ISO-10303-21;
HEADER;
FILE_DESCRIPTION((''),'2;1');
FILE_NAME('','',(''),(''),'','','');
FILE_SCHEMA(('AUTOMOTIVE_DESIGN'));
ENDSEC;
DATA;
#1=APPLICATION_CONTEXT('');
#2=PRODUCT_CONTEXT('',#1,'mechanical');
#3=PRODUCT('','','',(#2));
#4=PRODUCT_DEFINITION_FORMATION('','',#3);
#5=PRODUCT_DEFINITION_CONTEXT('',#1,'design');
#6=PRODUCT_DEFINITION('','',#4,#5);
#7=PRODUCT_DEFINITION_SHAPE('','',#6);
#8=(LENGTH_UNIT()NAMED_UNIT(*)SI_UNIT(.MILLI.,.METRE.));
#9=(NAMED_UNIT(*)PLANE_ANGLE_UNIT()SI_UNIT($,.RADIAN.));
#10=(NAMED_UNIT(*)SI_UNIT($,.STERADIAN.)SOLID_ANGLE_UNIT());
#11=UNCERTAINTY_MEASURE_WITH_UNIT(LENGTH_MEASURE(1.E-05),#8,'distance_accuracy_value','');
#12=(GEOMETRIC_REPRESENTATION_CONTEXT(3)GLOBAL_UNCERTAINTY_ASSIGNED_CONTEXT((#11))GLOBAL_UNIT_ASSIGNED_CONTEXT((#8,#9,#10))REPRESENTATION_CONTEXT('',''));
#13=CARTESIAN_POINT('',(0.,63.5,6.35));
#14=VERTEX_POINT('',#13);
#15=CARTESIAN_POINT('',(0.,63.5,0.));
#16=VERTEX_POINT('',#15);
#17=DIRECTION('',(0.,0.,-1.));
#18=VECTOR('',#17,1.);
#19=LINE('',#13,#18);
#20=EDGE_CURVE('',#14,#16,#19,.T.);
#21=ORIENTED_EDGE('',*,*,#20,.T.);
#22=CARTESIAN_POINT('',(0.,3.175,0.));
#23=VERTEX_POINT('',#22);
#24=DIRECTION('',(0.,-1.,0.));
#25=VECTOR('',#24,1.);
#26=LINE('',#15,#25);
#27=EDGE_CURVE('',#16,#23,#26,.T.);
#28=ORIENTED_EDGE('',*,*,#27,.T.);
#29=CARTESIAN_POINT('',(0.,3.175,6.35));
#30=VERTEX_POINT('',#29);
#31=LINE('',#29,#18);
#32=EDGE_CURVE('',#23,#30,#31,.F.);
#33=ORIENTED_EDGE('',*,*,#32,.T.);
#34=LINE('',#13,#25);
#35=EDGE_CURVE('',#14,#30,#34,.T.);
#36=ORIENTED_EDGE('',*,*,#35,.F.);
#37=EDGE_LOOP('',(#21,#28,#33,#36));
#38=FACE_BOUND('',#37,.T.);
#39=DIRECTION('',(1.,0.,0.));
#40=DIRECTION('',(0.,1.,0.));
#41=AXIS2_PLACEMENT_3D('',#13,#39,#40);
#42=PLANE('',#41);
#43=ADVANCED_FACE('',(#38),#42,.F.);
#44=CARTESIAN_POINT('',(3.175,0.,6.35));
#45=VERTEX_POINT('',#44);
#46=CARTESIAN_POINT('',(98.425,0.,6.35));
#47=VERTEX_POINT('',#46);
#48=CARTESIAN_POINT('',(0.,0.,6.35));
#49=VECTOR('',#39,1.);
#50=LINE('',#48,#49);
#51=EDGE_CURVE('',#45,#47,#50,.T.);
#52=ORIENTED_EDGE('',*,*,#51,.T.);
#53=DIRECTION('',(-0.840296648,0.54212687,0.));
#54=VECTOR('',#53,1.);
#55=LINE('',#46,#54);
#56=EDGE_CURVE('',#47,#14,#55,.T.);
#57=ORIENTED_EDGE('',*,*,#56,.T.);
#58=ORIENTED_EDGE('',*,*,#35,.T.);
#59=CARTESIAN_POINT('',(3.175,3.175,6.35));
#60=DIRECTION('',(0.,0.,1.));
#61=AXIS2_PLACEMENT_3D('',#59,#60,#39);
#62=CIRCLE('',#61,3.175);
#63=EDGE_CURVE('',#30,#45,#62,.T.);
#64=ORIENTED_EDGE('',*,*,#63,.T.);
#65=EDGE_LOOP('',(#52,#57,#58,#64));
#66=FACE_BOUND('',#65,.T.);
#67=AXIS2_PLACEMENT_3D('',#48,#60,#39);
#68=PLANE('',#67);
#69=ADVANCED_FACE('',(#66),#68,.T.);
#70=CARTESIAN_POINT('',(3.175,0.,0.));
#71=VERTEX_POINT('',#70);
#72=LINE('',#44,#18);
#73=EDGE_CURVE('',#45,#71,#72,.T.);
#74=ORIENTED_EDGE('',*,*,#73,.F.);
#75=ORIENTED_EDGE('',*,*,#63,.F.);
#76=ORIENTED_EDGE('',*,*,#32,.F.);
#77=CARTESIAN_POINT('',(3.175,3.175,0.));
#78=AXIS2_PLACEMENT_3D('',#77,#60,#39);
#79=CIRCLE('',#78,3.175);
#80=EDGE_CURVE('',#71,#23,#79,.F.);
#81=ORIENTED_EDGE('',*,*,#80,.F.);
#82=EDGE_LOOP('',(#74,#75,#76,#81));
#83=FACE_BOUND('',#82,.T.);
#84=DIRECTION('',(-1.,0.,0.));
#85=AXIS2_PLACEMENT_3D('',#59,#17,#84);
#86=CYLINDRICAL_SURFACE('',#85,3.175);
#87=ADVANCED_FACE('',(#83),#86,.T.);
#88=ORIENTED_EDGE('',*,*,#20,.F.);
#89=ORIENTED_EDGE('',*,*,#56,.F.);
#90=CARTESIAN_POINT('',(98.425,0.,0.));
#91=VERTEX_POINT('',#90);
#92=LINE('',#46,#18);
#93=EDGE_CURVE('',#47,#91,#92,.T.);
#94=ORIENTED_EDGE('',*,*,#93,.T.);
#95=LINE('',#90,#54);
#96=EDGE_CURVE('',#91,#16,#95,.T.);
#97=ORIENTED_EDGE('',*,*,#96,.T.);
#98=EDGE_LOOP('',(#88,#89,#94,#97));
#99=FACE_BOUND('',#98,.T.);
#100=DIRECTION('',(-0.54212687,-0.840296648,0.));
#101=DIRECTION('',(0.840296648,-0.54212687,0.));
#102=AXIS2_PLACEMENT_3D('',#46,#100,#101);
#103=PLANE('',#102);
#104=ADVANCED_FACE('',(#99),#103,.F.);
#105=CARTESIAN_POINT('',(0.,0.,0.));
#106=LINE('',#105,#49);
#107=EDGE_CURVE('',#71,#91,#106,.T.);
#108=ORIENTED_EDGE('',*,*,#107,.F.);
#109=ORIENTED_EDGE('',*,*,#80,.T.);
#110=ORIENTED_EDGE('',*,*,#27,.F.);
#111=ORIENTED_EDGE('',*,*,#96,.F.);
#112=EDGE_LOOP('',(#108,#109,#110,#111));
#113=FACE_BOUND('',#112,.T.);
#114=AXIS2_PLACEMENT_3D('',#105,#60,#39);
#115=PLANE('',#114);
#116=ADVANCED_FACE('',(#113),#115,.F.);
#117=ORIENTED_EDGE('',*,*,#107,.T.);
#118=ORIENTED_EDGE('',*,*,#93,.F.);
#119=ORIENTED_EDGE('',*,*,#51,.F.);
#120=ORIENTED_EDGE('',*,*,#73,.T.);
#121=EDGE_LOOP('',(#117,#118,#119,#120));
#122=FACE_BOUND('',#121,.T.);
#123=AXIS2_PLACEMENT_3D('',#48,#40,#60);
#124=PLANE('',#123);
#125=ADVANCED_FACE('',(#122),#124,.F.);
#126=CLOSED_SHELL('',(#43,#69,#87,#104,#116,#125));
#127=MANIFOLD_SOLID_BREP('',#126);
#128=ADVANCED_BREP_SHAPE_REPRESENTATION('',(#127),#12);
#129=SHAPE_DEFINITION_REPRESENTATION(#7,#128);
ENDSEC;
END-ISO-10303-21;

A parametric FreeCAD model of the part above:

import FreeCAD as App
import Part
import Sketcher
Q = App.Units.Quantity


def edges_at(feature, points):
    """Names of the edges that pass closest to the given points."""
    edges = feature.Shape.Edges
    near = lambda p: min(range(len(edges)), key=lambda i: edges[i].distToShape(Part.Vertex(*p))[0])
    return sorted({f"Edge{near(p) + 1}" for p in points})

doc = App.newDocument("Part")
body = doc.addObject("PartDesign::Body", "Body")

# Sketch on XY plane
sketch1 = body.newObject("Sketcher::SketchObject", "Sketch")
sketch1.AttachmentSupport = (doc.getObject("XY_Plane"), [""])
sketch1.MapMode = "FlatFace"
sketch1.addGeometry(Part.LineSegment(App.Vector(0, 0, 0), App.Vector(98, 0, 0)), False)
sketch1.addGeometry(Part.LineSegment(App.Vector(98, 0, 0), App.Vector(0, 64, 0)), False)
sketch1.addGeometry(Part.LineSegment(App.Vector(0, 64, 0), App.Vector(0, 0, 0)), False)
sketch1.addConstraint(Sketcher.Constraint("Coincident", 0, 2, 1, 1))
sketch1.addConstraint(Sketcher.Constraint("Coincident", 1, 2, 2, 1))
sketch1.addConstraint(Sketcher.Constraint("Coincident", 2, 2, 0, 1))
sketch1.addConstraint(Sketcher.Constraint("Horizontal", 0))
sketch1.addConstraint(Sketcher.Constraint("Vertical", 2))
sketch1.addConstraint(Sketcher.Constraint("Coincident", 2, 2, -1, 1))
sketch1.addConstraint(Sketcher.Constraint("DistanceY", 2, 2, 2, 1, Q("2.5 in")))
sketch1.addConstraint(Sketcher.Constraint("DistanceX", 0, 1, 0, 2, Q("3.875 in")))
pad1 = body.newObject("PartDesign::Pad", "Pad")
pad1.Profile = sketch1
pad1.Length = Q("0.25 in")
doc.recompute()

fillet = body.newObject("PartDesign::Fillet", "Fillet")
fillet.Base = (pad1, edges_at(pad1, [(0, 0, 3.175)]))
fillet.Radius = Q("0.125 in")

doc.recompute()
